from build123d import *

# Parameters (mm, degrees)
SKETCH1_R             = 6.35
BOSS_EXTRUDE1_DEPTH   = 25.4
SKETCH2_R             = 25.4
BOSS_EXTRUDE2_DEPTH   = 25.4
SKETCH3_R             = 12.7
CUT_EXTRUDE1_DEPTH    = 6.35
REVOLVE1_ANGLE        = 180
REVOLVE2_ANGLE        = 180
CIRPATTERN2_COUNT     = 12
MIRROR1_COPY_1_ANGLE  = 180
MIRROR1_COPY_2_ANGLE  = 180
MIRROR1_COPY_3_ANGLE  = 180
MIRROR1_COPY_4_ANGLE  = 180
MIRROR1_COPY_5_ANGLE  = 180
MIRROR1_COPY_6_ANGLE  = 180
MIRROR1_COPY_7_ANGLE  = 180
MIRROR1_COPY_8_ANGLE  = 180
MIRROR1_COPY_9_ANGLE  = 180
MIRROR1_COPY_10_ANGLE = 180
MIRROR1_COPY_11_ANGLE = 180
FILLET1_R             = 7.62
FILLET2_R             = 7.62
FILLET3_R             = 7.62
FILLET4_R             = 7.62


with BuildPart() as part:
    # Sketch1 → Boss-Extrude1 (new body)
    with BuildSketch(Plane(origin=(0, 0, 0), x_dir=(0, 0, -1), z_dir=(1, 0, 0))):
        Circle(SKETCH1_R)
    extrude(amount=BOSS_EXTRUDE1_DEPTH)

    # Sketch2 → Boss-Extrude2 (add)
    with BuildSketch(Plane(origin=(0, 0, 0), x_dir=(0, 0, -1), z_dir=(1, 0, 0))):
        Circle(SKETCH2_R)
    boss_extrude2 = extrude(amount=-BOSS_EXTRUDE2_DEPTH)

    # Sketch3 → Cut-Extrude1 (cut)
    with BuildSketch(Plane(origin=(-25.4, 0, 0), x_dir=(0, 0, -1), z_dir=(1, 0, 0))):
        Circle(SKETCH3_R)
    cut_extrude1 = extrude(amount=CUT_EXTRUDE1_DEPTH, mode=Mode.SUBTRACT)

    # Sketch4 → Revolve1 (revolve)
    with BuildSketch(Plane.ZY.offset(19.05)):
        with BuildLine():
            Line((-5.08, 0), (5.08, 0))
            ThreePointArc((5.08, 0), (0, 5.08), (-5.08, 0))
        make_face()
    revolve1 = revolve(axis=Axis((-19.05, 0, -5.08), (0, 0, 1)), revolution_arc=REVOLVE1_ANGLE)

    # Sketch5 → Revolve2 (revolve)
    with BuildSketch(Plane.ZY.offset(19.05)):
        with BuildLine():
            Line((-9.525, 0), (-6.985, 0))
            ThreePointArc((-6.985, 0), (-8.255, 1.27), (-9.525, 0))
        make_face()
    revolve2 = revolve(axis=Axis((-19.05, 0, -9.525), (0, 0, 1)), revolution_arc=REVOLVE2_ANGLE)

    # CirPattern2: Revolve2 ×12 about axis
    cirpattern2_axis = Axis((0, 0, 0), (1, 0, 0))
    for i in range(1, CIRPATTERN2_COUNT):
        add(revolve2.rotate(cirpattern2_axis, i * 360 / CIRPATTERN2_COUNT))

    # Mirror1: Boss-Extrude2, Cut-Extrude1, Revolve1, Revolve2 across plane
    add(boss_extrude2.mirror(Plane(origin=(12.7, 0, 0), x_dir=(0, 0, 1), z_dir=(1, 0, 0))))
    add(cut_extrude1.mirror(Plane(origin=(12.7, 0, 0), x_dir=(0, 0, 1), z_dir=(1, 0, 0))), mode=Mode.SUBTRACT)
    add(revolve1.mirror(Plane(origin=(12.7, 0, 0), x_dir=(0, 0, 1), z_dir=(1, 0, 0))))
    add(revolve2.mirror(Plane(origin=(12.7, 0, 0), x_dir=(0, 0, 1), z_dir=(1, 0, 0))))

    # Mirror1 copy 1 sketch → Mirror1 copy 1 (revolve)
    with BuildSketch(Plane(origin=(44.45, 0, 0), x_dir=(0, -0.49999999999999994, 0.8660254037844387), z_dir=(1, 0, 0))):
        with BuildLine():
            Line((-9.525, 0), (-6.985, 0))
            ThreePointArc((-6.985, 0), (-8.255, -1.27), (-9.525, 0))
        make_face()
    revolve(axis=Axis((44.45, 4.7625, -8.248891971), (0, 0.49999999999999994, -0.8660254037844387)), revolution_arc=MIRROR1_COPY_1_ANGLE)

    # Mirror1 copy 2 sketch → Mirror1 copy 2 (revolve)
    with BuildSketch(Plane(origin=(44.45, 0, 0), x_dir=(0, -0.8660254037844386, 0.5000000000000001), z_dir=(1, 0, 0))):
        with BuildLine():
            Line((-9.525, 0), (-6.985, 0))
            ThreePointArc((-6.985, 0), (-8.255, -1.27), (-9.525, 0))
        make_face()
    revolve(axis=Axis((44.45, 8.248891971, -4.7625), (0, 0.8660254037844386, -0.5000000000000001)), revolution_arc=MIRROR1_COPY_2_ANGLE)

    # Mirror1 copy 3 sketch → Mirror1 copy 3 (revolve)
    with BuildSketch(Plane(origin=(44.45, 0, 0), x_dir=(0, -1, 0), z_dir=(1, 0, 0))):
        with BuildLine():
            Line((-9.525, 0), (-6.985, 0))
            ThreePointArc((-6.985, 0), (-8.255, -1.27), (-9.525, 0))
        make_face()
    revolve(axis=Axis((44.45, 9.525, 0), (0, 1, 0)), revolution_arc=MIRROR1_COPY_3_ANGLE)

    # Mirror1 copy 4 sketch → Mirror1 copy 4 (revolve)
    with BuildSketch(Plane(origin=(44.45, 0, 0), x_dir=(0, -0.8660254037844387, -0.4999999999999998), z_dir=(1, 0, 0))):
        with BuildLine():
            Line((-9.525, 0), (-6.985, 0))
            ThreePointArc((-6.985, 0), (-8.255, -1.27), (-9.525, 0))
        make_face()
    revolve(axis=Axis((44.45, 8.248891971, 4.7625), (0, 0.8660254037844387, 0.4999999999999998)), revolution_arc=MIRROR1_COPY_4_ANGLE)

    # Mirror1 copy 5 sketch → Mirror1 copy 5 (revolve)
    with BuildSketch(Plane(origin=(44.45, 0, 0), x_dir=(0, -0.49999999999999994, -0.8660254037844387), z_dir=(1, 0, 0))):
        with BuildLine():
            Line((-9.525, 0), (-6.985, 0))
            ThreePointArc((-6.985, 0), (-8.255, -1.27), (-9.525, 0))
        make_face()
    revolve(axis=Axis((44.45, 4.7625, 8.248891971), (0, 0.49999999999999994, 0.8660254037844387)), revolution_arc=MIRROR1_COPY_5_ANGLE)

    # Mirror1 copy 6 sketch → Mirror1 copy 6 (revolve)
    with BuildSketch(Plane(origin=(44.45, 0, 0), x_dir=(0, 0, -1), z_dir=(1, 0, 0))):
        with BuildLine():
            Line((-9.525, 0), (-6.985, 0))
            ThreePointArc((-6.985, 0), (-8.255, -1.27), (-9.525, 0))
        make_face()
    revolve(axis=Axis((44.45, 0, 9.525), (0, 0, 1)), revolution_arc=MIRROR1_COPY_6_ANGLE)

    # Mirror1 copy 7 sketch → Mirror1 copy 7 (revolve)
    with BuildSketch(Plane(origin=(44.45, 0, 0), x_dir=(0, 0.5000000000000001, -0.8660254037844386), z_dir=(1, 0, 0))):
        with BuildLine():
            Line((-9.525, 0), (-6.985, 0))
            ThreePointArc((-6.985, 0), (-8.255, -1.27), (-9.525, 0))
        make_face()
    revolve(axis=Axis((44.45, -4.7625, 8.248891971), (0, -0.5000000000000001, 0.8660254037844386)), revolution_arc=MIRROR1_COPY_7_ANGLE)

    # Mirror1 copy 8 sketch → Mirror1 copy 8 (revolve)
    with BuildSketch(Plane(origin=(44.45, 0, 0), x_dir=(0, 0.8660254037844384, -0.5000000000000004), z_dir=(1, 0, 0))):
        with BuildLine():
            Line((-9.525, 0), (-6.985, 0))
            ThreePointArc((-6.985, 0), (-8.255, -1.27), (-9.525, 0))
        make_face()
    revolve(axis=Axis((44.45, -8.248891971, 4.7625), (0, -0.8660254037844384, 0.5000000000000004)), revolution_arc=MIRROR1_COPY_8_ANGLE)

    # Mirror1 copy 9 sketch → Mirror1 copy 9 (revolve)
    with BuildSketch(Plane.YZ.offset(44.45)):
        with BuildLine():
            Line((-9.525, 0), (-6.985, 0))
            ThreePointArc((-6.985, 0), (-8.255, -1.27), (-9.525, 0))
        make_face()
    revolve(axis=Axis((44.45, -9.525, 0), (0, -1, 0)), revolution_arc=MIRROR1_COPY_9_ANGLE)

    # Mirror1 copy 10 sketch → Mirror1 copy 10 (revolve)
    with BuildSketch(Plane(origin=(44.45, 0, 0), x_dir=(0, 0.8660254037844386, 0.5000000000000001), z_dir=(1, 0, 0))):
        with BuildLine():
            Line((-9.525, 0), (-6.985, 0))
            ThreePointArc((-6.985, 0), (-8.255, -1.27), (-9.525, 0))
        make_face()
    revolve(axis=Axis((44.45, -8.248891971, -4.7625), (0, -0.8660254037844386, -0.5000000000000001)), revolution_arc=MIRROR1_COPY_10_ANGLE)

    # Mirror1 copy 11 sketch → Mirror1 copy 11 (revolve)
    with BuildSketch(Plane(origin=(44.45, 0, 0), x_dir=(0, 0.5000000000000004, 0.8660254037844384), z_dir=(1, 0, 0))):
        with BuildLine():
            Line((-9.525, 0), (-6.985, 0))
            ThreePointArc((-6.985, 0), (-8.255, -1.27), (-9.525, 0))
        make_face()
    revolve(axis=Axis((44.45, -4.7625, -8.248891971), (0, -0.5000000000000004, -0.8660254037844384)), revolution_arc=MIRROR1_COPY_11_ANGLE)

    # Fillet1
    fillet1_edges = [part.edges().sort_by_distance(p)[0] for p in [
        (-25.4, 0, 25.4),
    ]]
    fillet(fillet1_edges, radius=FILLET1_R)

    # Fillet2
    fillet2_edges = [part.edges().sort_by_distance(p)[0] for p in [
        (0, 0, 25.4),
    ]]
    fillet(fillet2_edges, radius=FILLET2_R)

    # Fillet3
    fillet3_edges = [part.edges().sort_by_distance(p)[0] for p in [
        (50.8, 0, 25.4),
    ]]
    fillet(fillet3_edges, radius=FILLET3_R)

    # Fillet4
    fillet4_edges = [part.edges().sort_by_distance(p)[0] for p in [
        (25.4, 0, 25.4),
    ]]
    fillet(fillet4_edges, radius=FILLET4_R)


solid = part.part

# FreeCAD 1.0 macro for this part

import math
import FreeCAD as App
import Part
import Sketcher
from FreeCAD import Vector
Q = App.Units.Quantity


def edges_at(feature, points):
    """Names of the edges that pass closest to the given points."""
    edges = feature.Shape.Edges
    near = lambda p: min(range(len(edges)), key=lambda i: edges[i].distToShape(Part.Vertex(*p))[0])
    return sorted({f"Edge{near(p) + 1}" for p in points})

doc = App.newDocument("Part")
params = doc.addObject("Spreadsheet::Sheet", "Params")
for row, (alias, value) in enumerate([
    ("sketch1_diameter", "0.5 in"),
    ("pad1_length", "1 in"),
    ("sketch2_diameter", "2 in"),
    ("pad2_length", "1 in"),
    ("sketch3_diameter", "1 in"),
    ("pocket1_length", "0.25 in"),
    ("sketch4_radius", "0.2 in"),
    ("revolution_angle", "180 deg"),
    ("sketch5_radius", "0.05 in"),
    ("revolution2_angle", "180 deg"),
    ("sketch6_radius", "0.05 in"),
    ("revolution3_angle", "180 deg"),
    ("sketch7_radius", "0.05 in"),
    ("revolution4_angle", "180 deg"),
    ("sketch8_radius", "0.05 in"),
    ("revolution5_angle", "180 deg"),
    ("sketch9_radius", "0.05 in"),
    ("revolution6_angle", "180 deg"),
    ("sketch10_radius", "0.05 in"),
    ("revolution7_angle", "180 deg"),
    ("sketch11_radius", "0.05 in"),
    ("revolution8_angle", "180 deg"),
    ("sketch12_radius", "0.05 in"),
    ("revolution9_angle", "180 deg"),
    ("sketch13_radius", "0.05 in"),
    ("revolution10_angle", "180 deg"),
    ("sketch14_radius", "0.05 in"),
    ("revolution11_angle", "180 deg"),
    ("sketch15_radius", "0.05 in"),
    ("revolution12_angle", "180 deg"),
    ("sketch16_radius", "0.05 in"),
    ("revolution13_angle", "180 deg"),
    ("fillet_radius", "0.3 in"),
    ("fillet2_radius", "0.3 in"),
    ("fillet3_radius", "0.3 in"),
    ("fillet4_radius", "0.3 in"),
], start=1):
    params.set(f"A{row}", alias)
    params.set(f"B{row}", "=" + value)
    params.setAlias(f"B{row}", alias)

body = doc.addObject("PartDesign::Body", "Body")

# Sketch on YZ plane
sketch1 = body.newObject("Sketcher::SketchObject", "Sketch")
sketch1.AttachmentSupport = (doc.getObject("YZ_Plane"), [""])
sketch1.MapMode = "FlatFace"
sketch1.addGeometry(Part.Circle(Vector(0, 0, 0), Vector(0, 0, 1), 6), False)
sketch1.addConstraint(Sketcher.Constraint("Coincident", 0, 3, -1, 1))
sketch1.addConstraint(Sketcher.Constraint("Diameter", 0, Q("0.5 in")))
sketch1.setExpression("Constraints[1]", "Params.sketch1_diameter")
pad1 = body.newObject("PartDesign::Pad", "Pad")
pad1.Profile = sketch1
pad1.setExpression("Length", "Params.pad1_length")

# Sketch on YZ plane
sketch2 = body.newObject("Sketcher::SketchObject", "Sketch001")
sketch2.AttachmentSupport = (doc.getObject("YZ_Plane"), [""])
sketch2.MapMode = "FlatFace"
sketch2.addGeometry(Part.Circle(Vector(0, 0, 0), Vector(0, 0, 1), 25), False)
sketch2.addConstraint(Sketcher.Constraint("Coincident", 0, 3, -1, 1))
sketch2.addConstraint(Sketcher.Constraint("Diameter", 0, Q("2 in")))
sketch2.setExpression("Constraints[1]", "Params.sketch2_diameter")
pad2 = body.newObject("PartDesign::Pad", "Pad001")
pad2.Profile = sketch2
pad2.setExpression("Length", "Params.pad2_length")
pad2.Reversed = True

# Sketch on YZ plane
sketch3 = body.newObject("Sketcher::SketchObject", "Sketch002")
sketch3.AttachmentSupport = (doc.getObject("YZ_Plane"), [""])
sketch3.MapMode = "FlatFace"
sketch3.AttachmentOffset = App.Placement(Vector(0, 0, -1 * 25.4), App.Rotation())
sketch3.addGeometry(Part.Circle(Vector(0, 0, 0), Vector(0, 0, 1), 13), False)
sketch3.addConstraint(Sketcher.Constraint("Coincident", 0, 3, -1, 1))
sketch3.addConstraint(Sketcher.Constraint("Diameter", 0, Q("1 in")))
sketch3.setExpression("Constraints[1]", "Params.sketch3_diameter")
pocket1 = body.newObject("PartDesign::Pocket", "Pocket")
pocket1.Profile = sketch3
pocket1.setExpression("Length", "Params.pocket1_length")
pocket1.Reversed = True

# Sketch on YZ plane
sketch4 = body.newObject("Sketcher::SketchObject", "Sketch003")
sketch4.AttachmentSupport = (doc.getObject("YZ_Plane"), [""])
sketch4.MapMode = "FlatFace"
sketch4.AttachmentOffset = App.Placement(Vector(0, 0, -0.75 * 25.4), App.Rotation())
sketch4.addGeometry(Part.LineSegment(Vector(0, -5, 0), Vector(0, 5, 0)), False)
sketch4.addGeometry(Part.ArcOfCircle(Part.Circle(Vector(0, 0, 0), Vector(0, 0, 1), 5), math.radians(-90), math.radians(90)), False)
sketch4.addConstraint(Sketcher.Constraint("Coincident", 0, 1, 1, 1))
sketch4.addConstraint(Sketcher.Constraint("Coincident", 1, 2, 0, 2))
sketch4.addConstraint(Sketcher.Constraint("Vertical", 0))
sketch4.addConstraint(Sketcher.Constraint("Coincident", 1, 3, -1, 1))
sketch4.addConstraint(Sketcher.Constraint("PointOnObject", 0, 1, -2))
sketch4.addConstraint(Sketcher.Constraint("Radius", 1, Q("0.2 in")))
sketch4.setExpression("Constraints[5]", "Params.sketch4_radius")
revolution = body.newObject("PartDesign::Revolution", "Revolution")
revolution.Profile = sketch4
revolution.ReferenceAxis = (sketch4, ["V_Axis"])
revolution.setExpression("Angle", "Params.revolution_angle")

# Sketch on YZ plane
sketch5 = body.newObject("Sketcher::SketchObject", "Sketch004")
sketch5.AttachmentSupport = (doc.getObject("YZ_Plane"), [""])
sketch5.MapMode = "FlatFace"
sketch5.AttachmentOffset = App.Placement(Vector(0, 0, -0.75 * 25.4), App.Rotation())
sketch5.addGeometry(Part.LineSegment(Vector(0, -9.5, 0), Vector(0, -7, 0)), False)
sketch5.addGeometry(Part.ArcOfCircle(Part.Circle(Vector(0, -8.3, 0), Vector(0, 0, 1), 1.3), math.radians(-90), math.radians(90)), False)
sketch5.addConstraint(Sketcher.Constraint("Coincident", 0, 1, 1, 1))
sketch5.addConstraint(Sketcher.Constraint("Coincident", 1, 2, 0, 2))
sketch5.addConstraint(Sketcher.Constraint("Vertical", 0))
sketch5.addConstraint(Sketcher.Constraint("PointOnObject", 1, 3, -2))
sketch5.addConstraint(Sketcher.Constraint("PointOnObject", 0, 1, -2))
sketch5.addConstraint(Sketcher.Constraint("Radius", 1, Q("0.05 in")))
sketch5.addConstraint(Sketcher.Constraint("DistanceY", 1, 3, -1, 1, Q("0.325 in")))
sketch5.setExpression("Constraints[5]", "Params.sketch5_radius")
revolution2 = body.newObject("PartDesign::Revolution", "Revolution001")
revolution2.Profile = sketch5
revolution2.ReferenceAxis = (sketch5, ["V_Axis"])
revolution2.setExpression("Angle", "Params.revolution2_angle")
doc.recompute()

polarpattern = body.newObject("PartDesign::PolarPattern", "PolarPattern")
polarpattern.Originals = [revolution2]
polarpattern.Axis = (doc.getObject("X_Axis"), [""])
polarpattern.Angle = 360
polarpattern.Occurrences = 12
body.Tip = polarpattern
doc.recompute()

datumplane = body.newObject("PartDesign::Plane", "DatumPlane")
datumplane.AttachmentSupport = (doc.getObject("YZ_Plane"), [""])
datumplane.MapMode = "FlatFace"
datumplane.AttachmentOffset = App.Placement(Vector(0, 0, 0.5 * 25.4), App.Rotation())
mirrored = body.newObject("PartDesign::Mirrored", "Mirrored")
mirrored.Originals = [pad2, pocket1, revolution, revolution2]
mirrored.MirrorPlane = (datumplane, [""])
body.Tip = mirrored

# Sketch on YZ plane
sketch6 = body.newObject("Sketcher::SketchObject", "Sketch005")
sketch6.AttachmentSupport = (doc.getObject("YZ_Plane"), [""])
sketch6.MapMode = "FlatFace"
sketch6.AttachmentOffset = App.Placement(Vector(0, 0, 1.75 * 25.4), App.Rotation())
sketch6.addGeometry(Part.LineSegment(Vector(3.5, -6, 0), Vector(4.8, -8.2, 0)), False)
sketch6.addGeometry(Part.ArcOfCircle(Part.Circle(Vector(4.1, -7.1, 0), Vector(0, 0, 1), 1.3), math.radians(-60), math.radians(120)), False)
sketch6.addGeometry(Part.LineSegment(Vector(3.5, -6, 0), Vector(4.8, -8.2, 0)), True)  # axis
sketch6.addConstraint(Sketcher.Constraint("Coincident", 0, 1, 1, 2))
sketch6.addConstraint(Sketcher.Constraint("Coincident", 1, 1, 0, 2))
sketch6.addConstraint(Sketcher.Constraint("Coincident", 2, 1, 0, 1))
sketch6.addConstraint(Sketcher.Constraint("Coincident", 2, 2, 1, 1))
sketch6.addConstraint(Sketcher.Constraint("Radius", 1, Q("0.05 in")))
sketch6.addConstraint(Sketcher.Constraint("Angle", 0, Q("-60 deg")))
sketch6.addConstraint(Sketcher.Constraint("DistanceX", -1, 1, 1, 1, Q("0.1875 in")))
sketch6.addConstraint(Sketcher.Constraint("DistanceX", 0, 1, 1, 3, Q("0.025 in")))
sketch6.addConstraint(Sketcher.Constraint("DistanceY", 1, 3, -1, 1, Q("7.14904 mm")))
sketch6.setExpression("Constraints[4]", "Params.sketch6_radius")
revolution3 = body.newObject("PartDesign::Revolution", "Revolution002")
revolution3.Profile = sketch6
revolution3.ReferenceAxis = (sketch6, ["Axis0"])
revolution3.setExpression("Angle", "Params.revolution3_angle")

# Sketch on YZ plane
sketch7 = body.newObject("Sketcher::SketchObject", "Sketch006")
sketch7.AttachmentSupport = (doc.getObject("YZ_Plane"), [""])
sketch7.MapMode = "FlatFace"
sketch7.AttachmentOffset = App.Placement(Vector(0, 0, 1.75 * 25.4), App.Rotation())
sketch7.addGeometry(Part.LineSegment(Vector(6, -3.5, 0), Vector(8.2, -4.8, 0)), False)
sketch7.addGeometry(Part.ArcOfCircle(Part.Circle(Vector(7.1, -4.1, 0), Vector(0, 0, 1), 1.3), math.radians(-30), math.radians(150)), False)
sketch7.addGeometry(Part.LineSegment(Vector(6, -3.5, 0), Vector(8.2, -4.8, 0)), True)  # axis
sketch7.addConstraint(Sketcher.Constraint("Coincident", 0, 1, 1, 2))
sketch7.addConstraint(Sketcher.Constraint("Coincident", 1, 1, 0, 2))
sketch7.addConstraint(Sketcher.Constraint("Coincident", 2, 1, 0, 1))
sketch7.addConstraint(Sketcher.Constraint("Coincident", 2, 2, 1, 1))
sketch7.addConstraint(Sketcher.Constraint("Radius", 1, Q("0.05 in")))
sketch7.addConstraint(Sketcher.Constraint("Angle", 0, Q("-30 deg")))
sketch7.addConstraint(Sketcher.Constraint("DistanceY", 1, 1, -1, 1, Q("0.1875 in")))
sketch7.addConstraint(Sketcher.Constraint("DistanceY", 1, 3, 0, 1, Q("0.025 in")))
sketch7.addConstraint(Sketcher.Constraint("DistanceX", -1, 1, 1, 3, Q("7.14904 mm")))
sketch7.setExpression("Constraints[4]", "Params.sketch7_radius")
revolution4 = body.newObject("PartDesign::Revolution", "Revolution003")
revolution4.Profile = sketch7
revolution4.ReferenceAxis = (sketch7, ["Axis0"])
revolution4.setExpression("Angle", "Params.revolution4_angle")

# Sketch on YZ plane
sketch8 = body.newObject("Sketcher::SketchObject", "Sketch007")
sketch8.AttachmentSupport = (doc.getObject("YZ_Plane"), [""])
sketch8.MapMode = "FlatFace"
sketch8.AttachmentOffset = App.Placement(Vector(0, 0, 1.75 * 25.4), App.Rotation())
sketch8.addGeometry(Part.LineSegment(Vector(7, 0, 0), Vector(9.5, 0, 0)), False)
sketch8.addGeometry(Part.ArcOfCircle(Part.Circle(Vector(8.3, 0, 0), Vector(0, 0, 1), 1.3), math.radians(0), math.radians(180)), False)
sketch8.addConstraint(Sketcher.Constraint("Coincident", 0, 1, 1, 2))
sketch8.addConstraint(Sketcher.Constraint("Coincident", 1, 1, 0, 2))
sketch8.addConstraint(Sketcher.Constraint("Horizontal", 0))
sketch8.addConstraint(Sketcher.Constraint("PointOnObject", 1, 3, -1))
sketch8.addConstraint(Sketcher.Constraint("PointOnObject", 0, 1, -1))
sketch8.addConstraint(Sketcher.Constraint("Radius", 1, Q("0.05 in")))
sketch8.addConstraint(Sketcher.Constraint("DistanceX", -1, 1, 1, 3, Q("0.325 in")))
sketch8.setExpression("Constraints[5]", "Params.sketch8_radius")
revolution5 = body.newObject("PartDesign::Revolution", "Revolution004")
revolution5.Profile = sketch8
revolution5.ReferenceAxis = (sketch8, ["H_Axis"])
revolution5.setExpression("Angle", "Params.revolution5_angle")

# Sketch on YZ plane
sketch9 = body.newObject("Sketcher::SketchObject", "Sketch008")
sketch9.AttachmentSupport = (doc.getObject("YZ_Plane"), [""])
sketch9.MapMode = "FlatFace"
sketch9.AttachmentOffset = App.Placement(Vector(0, 0, 1.75 * 25.4), App.Rotation())
sketch9.addGeometry(Part.LineSegment(Vector(6, 3.5, 0), Vector(8.2, 4.8, 0)), False)
sketch9.addGeometry(Part.ArcOfCircle(Part.Circle(Vector(7.1, 4.1, 0), Vector(0, 0, 1), 1.3), math.radians(30), math.radians(210)), False)
sketch9.addGeometry(Part.LineSegment(Vector(6, 3.5, 0), Vector(8.2, 4.8, 0)), True)  # axis
sketch9.addConstraint(Sketcher.Constraint("Coincident", 0, 1, 1, 2))
sketch9.addConstraint(Sketcher.Constraint("Coincident", 1, 1, 0, 2))
sketch9.addConstraint(Sketcher.Constraint("Coincident", 2, 1, 0, 1))
sketch9.addConstraint(Sketcher.Constraint("Coincident", 2, 2, 1, 1))
sketch9.addConstraint(Sketcher.Constraint("Radius", 1, Q("0.05 in")))
sketch9.addConstraint(Sketcher.Constraint("Angle", 0, Q("30 deg")))
sketch9.addConstraint(Sketcher.Constraint("DistanceY", -1, 1, 1, 1, Q("0.1875 in")))
sketch9.addConstraint(Sketcher.Constraint("DistanceY", 0, 1, 1, 3, Q("0.025 in")))
sketch9.addConstraint(Sketcher.Constraint("DistanceX", -1, 1, 1, 3, Q("7.14904 mm")))
sketch9.setExpression("Constraints[4]", "Params.sketch9_radius")
revolution6 = body.newObject("PartDesign::Revolution", "Revolution005")
revolution6.Profile = sketch9
revolution6.ReferenceAxis = (sketch9, ["Axis0"])
revolution6.setExpression("Angle", "Params.revolution6_angle")

# Sketch on YZ plane
sketch10 = body.newObject("Sketcher::SketchObject", "Sketch009")
sketch10.AttachmentSupport = (doc.getObject("YZ_Plane"), [""])
sketch10.MapMode = "FlatFace"
sketch10.AttachmentOffset = App.Placement(Vector(0, 0, 1.75 * 25.4), App.Rotation())
sketch10.addGeometry(Part.LineSegment(Vector(3.5, 6, 0), Vector(4.8, 8.2, 0)), False)
sketch10.addGeometry(Part.ArcOfCircle(Part.Circle(Vector(4.1, 7.1, 0), Vector(0, 0, 1), 1.3), math.radians(60), math.radians(240)), False)
sketch10.addGeometry(Part.LineSegment(Vector(3.5, 6, 0), Vector(4.8, 8.2, 0)), True)  # axis
sketch10.addConstraint(Sketcher.Constraint("Coincident", 0, 1, 1, 2))
sketch10.addConstraint(Sketcher.Constraint("Coincident", 1, 1, 0, 2))
sketch10.addConstraint(Sketcher.Constraint("Coincident", 2, 1, 0, 1))
sketch10.addConstraint(Sketcher.Constraint("Coincident", 2, 2, 1, 1))
sketch10.addConstraint(Sketcher.Constraint("Radius", 1, Q("0.05 in")))
sketch10.addConstraint(Sketcher.Constraint("Angle", 0, Q("60 deg")))
sketch10.addConstraint(Sketcher.Constraint("DistanceX", -1, 1, 1, 1, Q("0.1875 in")))
sketch10.addConstraint(Sketcher.Constraint("DistanceX", 0, 1, 1, 3, Q("0.025 in")))
sketch10.addConstraint(Sketcher.Constraint("DistanceY", -1, 1, 1, 3, Q("7.14904 mm")))
sketch10.setExpression("Constraints[4]", "Params.sketch10_radius")
revolution7 = body.newObject("PartDesign::Revolution", "Revolution006")
revolution7.Profile = sketch10
revolution7.ReferenceAxis = (sketch10, ["Axis0"])
revolution7.setExpression("Angle", "Params.revolution7_angle")

# Sketch on YZ plane
sketch11 = body.newObject("Sketcher::SketchObject", "Sketch010")
sketch11.AttachmentSupport = (doc.getObject("YZ_Plane"), [""])
sketch11.MapMode = "FlatFace"
sketch11.AttachmentOffset = App.Placement(Vector(0, 0, 1.75 * 25.4), App.Rotation())
sketch11.addGeometry(Part.LineSegment(Vector(0, 7, 0), Vector(0, 9.5, 0)), False)
sketch11.addGeometry(Part.ArcOfCircle(Part.Circle(Vector(0, 8.3, 0), Vector(0, 0, 1), 1.3), math.radians(90), math.radians(270)), False)
sketch11.addConstraint(Sketcher.Constraint("Coincident", 0, 1, 1, 2))
sketch11.addConstraint(Sketcher.Constraint("Coincident", 1, 1, 0, 2))
sketch11.addConstraint(Sketcher.Constraint("Vertical", 0))
sketch11.addConstraint(Sketcher.Constraint("PointOnObject", 1, 3, -2))
sketch11.addConstraint(Sketcher.Constraint("PointOnObject", 0, 1, -2))
sketch11.addConstraint(Sketcher.Constraint("Radius", 1, Q("0.05 in")))
sketch11.addConstraint(Sketcher.Constraint("DistanceY", -1, 1, 1, 3, Q("0.325 in")))
sketch11.setExpression("Constraints[5]", "Params.sketch11_radius")
revolution8 = body.newObject("PartDesign::Revolution", "Revolution007")
revolution8.Profile = sketch11
revolution8.ReferenceAxis = (sketch11, ["V_Axis"])
revolution8.setExpression("Angle", "Params.revolution8_angle")

# Sketch on YZ plane
sketch12 = body.newObject("Sketcher::SketchObject", "Sketch011")
sketch12.AttachmentSupport = (doc.getObject("YZ_Plane"), [""])
sketch12.MapMode = "FlatFace"
sketch12.AttachmentOffset = App.Placement(Vector(0, 0, 1.75 * 25.4), App.Rotation())
sketch12.addGeometry(Part.LineSegment(Vector(-3.5, 6, 0), Vector(-4.8, 8.2, 0)), False)
sketch12.addGeometry(Part.ArcOfCircle(Part.Circle(Vector(-4.1, 7.1, 0), Vector(0, 0, 1), 1.3), math.radians(120), math.radians(300)), False)
sketch12.addGeometry(Part.LineSegment(Vector(-3.5, 6, 0), Vector(-4.8, 8.2, 0)), True)  # axis
sketch12.addConstraint(Sketcher.Constraint("Coincident", 0, 1, 1, 2))
sketch12.addConstraint(Sketcher.Constraint("Coincident", 1, 1, 0, 2))
sketch12.addConstraint(Sketcher.Constraint("Coincident", 2, 1, 0, 1))
sketch12.addConstraint(Sketcher.Constraint("Coincident", 2, 2, 1, 1))
sketch12.addConstraint(Sketcher.Constraint("Radius", 1, Q("0.05 in")))
sketch12.addConstraint(Sketcher.Constraint("Angle", 0, Q("120 deg")))
sketch12.addConstraint(Sketcher.Constraint("DistanceX", 1, 1, -1, 1, Q("0.1875 in")))
sketch12.addConstraint(Sketcher.Constraint("DistanceX", 1, 3, 0, 1, Q("0.025 in")))
sketch12.addConstraint(Sketcher.Constraint("DistanceY", -1, 1, 1, 3, Q("7.14904 mm")))
sketch12.setExpression("Constraints[4]", "Params.sketch12_radius")
revolution9 = body.newObject("PartDesign::Revolution", "Revolution008")
revolution9.Profile = sketch12
revolution9.ReferenceAxis = (sketch12, ["Axis0"])
revolution9.setExpression("Angle", "Params.revolution9_angle")

# Sketch on YZ plane
sketch13 = body.newObject("Sketcher::SketchObject", "Sketch012")
sketch13.AttachmentSupport = (doc.getObject("YZ_Plane"), [""])
sketch13.MapMode = "FlatFace"
sketch13.AttachmentOffset = App.Placement(Vector(0, 0, 1.75 * 25.4), App.Rotation())
sketch13.addGeometry(Part.LineSegment(Vector(-6, 3.5, 0), Vector(-8.2, 4.8, 0)), False)
sketch13.addGeometry(Part.ArcOfCircle(Part.Circle(Vector(-7.1, 4.1, 0), Vector(0, 0, 1), 1.3), math.radians(150), math.radians(330)), False)
sketch13.addGeometry(Part.LineSegment(Vector(-6, 3.5, 0), Vector(-8.2, 4.8, 0)), True)  # axis
sketch13.addConstraint(Sketcher.Constraint("Coincident", 0, 1, 1, 2))
sketch13.addConstraint(Sketcher.Constraint("Coincident", 1, 1, 0, 2))
sketch13.addConstraint(Sketcher.Constraint("Coincident", 2, 1, 0, 1))
sketch13.addConstraint(Sketcher.Constraint("Coincident", 2, 2, 1, 1))
sketch13.addConstraint(Sketcher.Constraint("Radius", 1, Q("0.05 in")))
sketch13.addConstraint(Sketcher.Constraint("Angle", 0, Q("150 deg")))
sketch13.addConstraint(Sketcher.Constraint("DistanceY", -1, 1, 1, 1, Q("0.1875 in")))
sketch13.addConstraint(Sketcher.Constraint("DistanceY", 0, 1, 1, 3, Q("0.025 in")))
sketch13.addConstraint(Sketcher.Constraint("DistanceX", 1, 3, -1, 1, Q("7.14904 mm")))
sketch13.setExpression("Constraints[4]", "Params.sketch13_radius")
revolution10 = body.newObject("PartDesign::Revolution", "Revolution009")
revolution10.Profile = sketch13
revolution10.ReferenceAxis = (sketch13, ["Axis0"])
revolution10.setExpression("Angle", "Params.revolution10_angle")

# Sketch on YZ plane
sketch14 = body.newObject("Sketcher::SketchObject", "Sketch013")
sketch14.AttachmentSupport = (doc.getObject("YZ_Plane"), [""])
sketch14.MapMode = "FlatFace"
sketch14.AttachmentOffset = App.Placement(Vector(0, 0, 1.75 * 25.4), App.Rotation())
sketch14.addGeometry(Part.LineSegment(Vector(-7, 0, 0), Vector(-9.5, 0, 0)), False)
sketch14.addGeometry(Part.ArcOfCircle(Part.Circle(Vector(-8.3, 0, 0), Vector(0, 0, 1), 1.3), math.radians(180), math.radians(360)), False)
sketch14.addConstraint(Sketcher.Constraint("Coincident", 0, 1, 1, 2))
sketch14.addConstraint(Sketcher.Constraint("Coincident", 1, 1, 0, 2))
sketch14.addConstraint(Sketcher.Constraint("Horizontal", 0))
sketch14.addConstraint(Sketcher.Constraint("PointOnObject", 1, 3, -1))
sketch14.addConstraint(Sketcher.Constraint("PointOnObject", 0, 1, -1))
sketch14.addConstraint(Sketcher.Constraint("Radius", 1, Q("0.05 in")))
sketch14.addConstraint(Sketcher.Constraint("DistanceX", 1, 3, -1, 1, Q("0.325 in")))
sketch14.setExpression("Constraints[5]", "Params.sketch14_radius")
revolution11 = body.newObject("PartDesign::Revolution", "Revolution010")
revolution11.Profile = sketch14
revolution11.ReferenceAxis = (sketch14, ["H_Axis"])
revolution11.setExpression("Angle", "Params.revolution11_angle")
revolution11.Reversed = True

# Sketch on YZ plane
sketch15 = body.newObject("Sketcher::SketchObject", "Sketch014")
sketch15.AttachmentSupport = (doc.getObject("YZ_Plane"), [""])
sketch15.MapMode = "FlatFace"
sketch15.AttachmentOffset = App.Placement(Vector(0, 0, 1.75 * 25.4), App.Rotation())
sketch15.addGeometry(Part.LineSegment(Vector(-6, -3.5, 0), Vector(-8.2, -4.8, 0)), False)
sketch15.addGeometry(Part.ArcOfCircle(Part.Circle(Vector(-7.1, -4.1, 0), Vector(0, 0, 1), 1.3), math.radians(-150), math.radians(30)), False)
sketch15.addGeometry(Part.LineSegment(Vector(-6, -3.5, 0), Vector(-8.2, -4.8, 0)), True)  # axis
sketch15.addConstraint(Sketcher.Constraint("Coincident", 0, 1, 1, 2))
sketch15.addConstraint(Sketcher.Constraint("Coincident", 1, 1, 0, 2))
sketch15.addConstraint(Sketcher.Constraint("Coincident", 2, 1, 0, 1))
sketch15.addConstraint(Sketcher.Constraint("Coincident", 2, 2, 1, 1))
sketch15.addConstraint(Sketcher.Constraint("Radius", 1, Q("0.05 in")))
sketch15.addConstraint(Sketcher.Constraint("Angle", 0, Q("-150 deg")))
sketch15.addConstraint(Sketcher.Constraint("DistanceY", 1, 1, -1, 1, Q("0.1875 in")))
sketch15.addConstraint(Sketcher.Constraint("DistanceY", 1, 3, 0, 1, Q("0.025 in")))
sketch15.addConstraint(Sketcher.Constraint("DistanceX", 1, 3, -1, 1, Q("7.14904 mm")))
sketch15.setExpression("Constraints[4]", "Params.sketch15_radius")
revolution12 = body.newObject("PartDesign::Revolution", "Revolution011")
revolution12.Profile = sketch15
revolution12.ReferenceAxis = (sketch15, ["Axis0"])
revolution12.setExpression("Angle", "Params.revolution12_angle")

# Sketch on YZ plane
sketch16 = body.newObject("Sketcher::SketchObject", "Sketch015")
sketch16.AttachmentSupport = (doc.getObject("YZ_Plane"), [""])
sketch16.MapMode = "FlatFace"
sketch16.AttachmentOffset = App.Placement(Vector(0, 0, 1.75 * 25.4), App.Rotation())
sketch16.addGeometry(Part.LineSegment(Vector(-3.5, -6, 0), Vector(-4.8, -8.2, 0)), False)
sketch16.addGeometry(Part.ArcOfCircle(Part.Circle(Vector(-4.1, -7.1, 0), Vector(0, 0, 1), 1.3), math.radians(-120), math.radians(60)), False)
sketch16.addGeometry(Part.LineSegment(Vector(-3.5, -6, 0), Vector(-4.8, -8.2, 0)), True)  # axis
sketch16.addConstraint(Sketcher.Constraint("Coincident", 0, 1, 1, 2))
sketch16.addConstraint(Sketcher.Constraint("Coincident", 1, 1, 0, 2))
sketch16.addConstraint(Sketcher.Constraint("Coincident", 2, 1, 0, 1))
sketch16.addConstraint(Sketcher.Constraint("Coincident", 2, 2, 1, 1))
sketch16.addConstraint(Sketcher.Constraint("Radius", 1, Q("0.05 in")))
sketch16.addConstraint(Sketcher.Constraint("Angle", 0, Q("-120 deg")))
sketch16.addConstraint(Sketcher.Constraint("DistanceX", 1, 1, -1, 1, Q("0.1875 in")))
sketch16.addConstraint(Sketcher.Constraint("DistanceX", 1, 3, 0, 1, Q("0.025 in")))
sketch16.addConstraint(Sketcher.Constraint("DistanceY", 1, 3, -1, 1, Q("7.14904 mm")))
sketch16.setExpression("Constraints[4]", "Params.sketch16_radius")
revolution13 = body.newObject("PartDesign::Revolution", "Revolution012")
revolution13.Profile = sketch16
revolution13.ReferenceAxis = (sketch16, ["Axis0"])
revolution13.setExpression("Angle", "Params.revolution13_angle")
doc.recompute()

fillet = body.newObject("PartDesign::Fillet", "Fillet")
fillet.Base = (revolution13, edges_at(revolution13, [(-25.4, 0, 25.4)]))
fillet.setExpression("Radius", "Params.fillet_radius")
doc.recompute()

fillet2 = body.newObject("PartDesign::Fillet", "Fillet001")
fillet2.Base = (fillet, edges_at(fillet, [(0, 0, 25.4)]))
fillet2.setExpression("Radius", "Params.fillet2_radius")
doc.recompute()

fillet3 = body.newObject("PartDesign::Fillet", "Fillet002")
fillet3.Base = (fillet2, edges_at(fillet2, [(50.8, 0, 25.4)]))
fillet3.setExpression("Radius", "Params.fillet3_radius")
doc.recompute()

fillet4 = body.newObject("PartDesign::Fillet", "Fillet003")
fillet4.Base = (fillet3, edges_at(fillet3, [(25.4, 0, 25.4)]))
fillet4.setExpression("Radius", "Params.fillet4_radius")

doc.recompute()
